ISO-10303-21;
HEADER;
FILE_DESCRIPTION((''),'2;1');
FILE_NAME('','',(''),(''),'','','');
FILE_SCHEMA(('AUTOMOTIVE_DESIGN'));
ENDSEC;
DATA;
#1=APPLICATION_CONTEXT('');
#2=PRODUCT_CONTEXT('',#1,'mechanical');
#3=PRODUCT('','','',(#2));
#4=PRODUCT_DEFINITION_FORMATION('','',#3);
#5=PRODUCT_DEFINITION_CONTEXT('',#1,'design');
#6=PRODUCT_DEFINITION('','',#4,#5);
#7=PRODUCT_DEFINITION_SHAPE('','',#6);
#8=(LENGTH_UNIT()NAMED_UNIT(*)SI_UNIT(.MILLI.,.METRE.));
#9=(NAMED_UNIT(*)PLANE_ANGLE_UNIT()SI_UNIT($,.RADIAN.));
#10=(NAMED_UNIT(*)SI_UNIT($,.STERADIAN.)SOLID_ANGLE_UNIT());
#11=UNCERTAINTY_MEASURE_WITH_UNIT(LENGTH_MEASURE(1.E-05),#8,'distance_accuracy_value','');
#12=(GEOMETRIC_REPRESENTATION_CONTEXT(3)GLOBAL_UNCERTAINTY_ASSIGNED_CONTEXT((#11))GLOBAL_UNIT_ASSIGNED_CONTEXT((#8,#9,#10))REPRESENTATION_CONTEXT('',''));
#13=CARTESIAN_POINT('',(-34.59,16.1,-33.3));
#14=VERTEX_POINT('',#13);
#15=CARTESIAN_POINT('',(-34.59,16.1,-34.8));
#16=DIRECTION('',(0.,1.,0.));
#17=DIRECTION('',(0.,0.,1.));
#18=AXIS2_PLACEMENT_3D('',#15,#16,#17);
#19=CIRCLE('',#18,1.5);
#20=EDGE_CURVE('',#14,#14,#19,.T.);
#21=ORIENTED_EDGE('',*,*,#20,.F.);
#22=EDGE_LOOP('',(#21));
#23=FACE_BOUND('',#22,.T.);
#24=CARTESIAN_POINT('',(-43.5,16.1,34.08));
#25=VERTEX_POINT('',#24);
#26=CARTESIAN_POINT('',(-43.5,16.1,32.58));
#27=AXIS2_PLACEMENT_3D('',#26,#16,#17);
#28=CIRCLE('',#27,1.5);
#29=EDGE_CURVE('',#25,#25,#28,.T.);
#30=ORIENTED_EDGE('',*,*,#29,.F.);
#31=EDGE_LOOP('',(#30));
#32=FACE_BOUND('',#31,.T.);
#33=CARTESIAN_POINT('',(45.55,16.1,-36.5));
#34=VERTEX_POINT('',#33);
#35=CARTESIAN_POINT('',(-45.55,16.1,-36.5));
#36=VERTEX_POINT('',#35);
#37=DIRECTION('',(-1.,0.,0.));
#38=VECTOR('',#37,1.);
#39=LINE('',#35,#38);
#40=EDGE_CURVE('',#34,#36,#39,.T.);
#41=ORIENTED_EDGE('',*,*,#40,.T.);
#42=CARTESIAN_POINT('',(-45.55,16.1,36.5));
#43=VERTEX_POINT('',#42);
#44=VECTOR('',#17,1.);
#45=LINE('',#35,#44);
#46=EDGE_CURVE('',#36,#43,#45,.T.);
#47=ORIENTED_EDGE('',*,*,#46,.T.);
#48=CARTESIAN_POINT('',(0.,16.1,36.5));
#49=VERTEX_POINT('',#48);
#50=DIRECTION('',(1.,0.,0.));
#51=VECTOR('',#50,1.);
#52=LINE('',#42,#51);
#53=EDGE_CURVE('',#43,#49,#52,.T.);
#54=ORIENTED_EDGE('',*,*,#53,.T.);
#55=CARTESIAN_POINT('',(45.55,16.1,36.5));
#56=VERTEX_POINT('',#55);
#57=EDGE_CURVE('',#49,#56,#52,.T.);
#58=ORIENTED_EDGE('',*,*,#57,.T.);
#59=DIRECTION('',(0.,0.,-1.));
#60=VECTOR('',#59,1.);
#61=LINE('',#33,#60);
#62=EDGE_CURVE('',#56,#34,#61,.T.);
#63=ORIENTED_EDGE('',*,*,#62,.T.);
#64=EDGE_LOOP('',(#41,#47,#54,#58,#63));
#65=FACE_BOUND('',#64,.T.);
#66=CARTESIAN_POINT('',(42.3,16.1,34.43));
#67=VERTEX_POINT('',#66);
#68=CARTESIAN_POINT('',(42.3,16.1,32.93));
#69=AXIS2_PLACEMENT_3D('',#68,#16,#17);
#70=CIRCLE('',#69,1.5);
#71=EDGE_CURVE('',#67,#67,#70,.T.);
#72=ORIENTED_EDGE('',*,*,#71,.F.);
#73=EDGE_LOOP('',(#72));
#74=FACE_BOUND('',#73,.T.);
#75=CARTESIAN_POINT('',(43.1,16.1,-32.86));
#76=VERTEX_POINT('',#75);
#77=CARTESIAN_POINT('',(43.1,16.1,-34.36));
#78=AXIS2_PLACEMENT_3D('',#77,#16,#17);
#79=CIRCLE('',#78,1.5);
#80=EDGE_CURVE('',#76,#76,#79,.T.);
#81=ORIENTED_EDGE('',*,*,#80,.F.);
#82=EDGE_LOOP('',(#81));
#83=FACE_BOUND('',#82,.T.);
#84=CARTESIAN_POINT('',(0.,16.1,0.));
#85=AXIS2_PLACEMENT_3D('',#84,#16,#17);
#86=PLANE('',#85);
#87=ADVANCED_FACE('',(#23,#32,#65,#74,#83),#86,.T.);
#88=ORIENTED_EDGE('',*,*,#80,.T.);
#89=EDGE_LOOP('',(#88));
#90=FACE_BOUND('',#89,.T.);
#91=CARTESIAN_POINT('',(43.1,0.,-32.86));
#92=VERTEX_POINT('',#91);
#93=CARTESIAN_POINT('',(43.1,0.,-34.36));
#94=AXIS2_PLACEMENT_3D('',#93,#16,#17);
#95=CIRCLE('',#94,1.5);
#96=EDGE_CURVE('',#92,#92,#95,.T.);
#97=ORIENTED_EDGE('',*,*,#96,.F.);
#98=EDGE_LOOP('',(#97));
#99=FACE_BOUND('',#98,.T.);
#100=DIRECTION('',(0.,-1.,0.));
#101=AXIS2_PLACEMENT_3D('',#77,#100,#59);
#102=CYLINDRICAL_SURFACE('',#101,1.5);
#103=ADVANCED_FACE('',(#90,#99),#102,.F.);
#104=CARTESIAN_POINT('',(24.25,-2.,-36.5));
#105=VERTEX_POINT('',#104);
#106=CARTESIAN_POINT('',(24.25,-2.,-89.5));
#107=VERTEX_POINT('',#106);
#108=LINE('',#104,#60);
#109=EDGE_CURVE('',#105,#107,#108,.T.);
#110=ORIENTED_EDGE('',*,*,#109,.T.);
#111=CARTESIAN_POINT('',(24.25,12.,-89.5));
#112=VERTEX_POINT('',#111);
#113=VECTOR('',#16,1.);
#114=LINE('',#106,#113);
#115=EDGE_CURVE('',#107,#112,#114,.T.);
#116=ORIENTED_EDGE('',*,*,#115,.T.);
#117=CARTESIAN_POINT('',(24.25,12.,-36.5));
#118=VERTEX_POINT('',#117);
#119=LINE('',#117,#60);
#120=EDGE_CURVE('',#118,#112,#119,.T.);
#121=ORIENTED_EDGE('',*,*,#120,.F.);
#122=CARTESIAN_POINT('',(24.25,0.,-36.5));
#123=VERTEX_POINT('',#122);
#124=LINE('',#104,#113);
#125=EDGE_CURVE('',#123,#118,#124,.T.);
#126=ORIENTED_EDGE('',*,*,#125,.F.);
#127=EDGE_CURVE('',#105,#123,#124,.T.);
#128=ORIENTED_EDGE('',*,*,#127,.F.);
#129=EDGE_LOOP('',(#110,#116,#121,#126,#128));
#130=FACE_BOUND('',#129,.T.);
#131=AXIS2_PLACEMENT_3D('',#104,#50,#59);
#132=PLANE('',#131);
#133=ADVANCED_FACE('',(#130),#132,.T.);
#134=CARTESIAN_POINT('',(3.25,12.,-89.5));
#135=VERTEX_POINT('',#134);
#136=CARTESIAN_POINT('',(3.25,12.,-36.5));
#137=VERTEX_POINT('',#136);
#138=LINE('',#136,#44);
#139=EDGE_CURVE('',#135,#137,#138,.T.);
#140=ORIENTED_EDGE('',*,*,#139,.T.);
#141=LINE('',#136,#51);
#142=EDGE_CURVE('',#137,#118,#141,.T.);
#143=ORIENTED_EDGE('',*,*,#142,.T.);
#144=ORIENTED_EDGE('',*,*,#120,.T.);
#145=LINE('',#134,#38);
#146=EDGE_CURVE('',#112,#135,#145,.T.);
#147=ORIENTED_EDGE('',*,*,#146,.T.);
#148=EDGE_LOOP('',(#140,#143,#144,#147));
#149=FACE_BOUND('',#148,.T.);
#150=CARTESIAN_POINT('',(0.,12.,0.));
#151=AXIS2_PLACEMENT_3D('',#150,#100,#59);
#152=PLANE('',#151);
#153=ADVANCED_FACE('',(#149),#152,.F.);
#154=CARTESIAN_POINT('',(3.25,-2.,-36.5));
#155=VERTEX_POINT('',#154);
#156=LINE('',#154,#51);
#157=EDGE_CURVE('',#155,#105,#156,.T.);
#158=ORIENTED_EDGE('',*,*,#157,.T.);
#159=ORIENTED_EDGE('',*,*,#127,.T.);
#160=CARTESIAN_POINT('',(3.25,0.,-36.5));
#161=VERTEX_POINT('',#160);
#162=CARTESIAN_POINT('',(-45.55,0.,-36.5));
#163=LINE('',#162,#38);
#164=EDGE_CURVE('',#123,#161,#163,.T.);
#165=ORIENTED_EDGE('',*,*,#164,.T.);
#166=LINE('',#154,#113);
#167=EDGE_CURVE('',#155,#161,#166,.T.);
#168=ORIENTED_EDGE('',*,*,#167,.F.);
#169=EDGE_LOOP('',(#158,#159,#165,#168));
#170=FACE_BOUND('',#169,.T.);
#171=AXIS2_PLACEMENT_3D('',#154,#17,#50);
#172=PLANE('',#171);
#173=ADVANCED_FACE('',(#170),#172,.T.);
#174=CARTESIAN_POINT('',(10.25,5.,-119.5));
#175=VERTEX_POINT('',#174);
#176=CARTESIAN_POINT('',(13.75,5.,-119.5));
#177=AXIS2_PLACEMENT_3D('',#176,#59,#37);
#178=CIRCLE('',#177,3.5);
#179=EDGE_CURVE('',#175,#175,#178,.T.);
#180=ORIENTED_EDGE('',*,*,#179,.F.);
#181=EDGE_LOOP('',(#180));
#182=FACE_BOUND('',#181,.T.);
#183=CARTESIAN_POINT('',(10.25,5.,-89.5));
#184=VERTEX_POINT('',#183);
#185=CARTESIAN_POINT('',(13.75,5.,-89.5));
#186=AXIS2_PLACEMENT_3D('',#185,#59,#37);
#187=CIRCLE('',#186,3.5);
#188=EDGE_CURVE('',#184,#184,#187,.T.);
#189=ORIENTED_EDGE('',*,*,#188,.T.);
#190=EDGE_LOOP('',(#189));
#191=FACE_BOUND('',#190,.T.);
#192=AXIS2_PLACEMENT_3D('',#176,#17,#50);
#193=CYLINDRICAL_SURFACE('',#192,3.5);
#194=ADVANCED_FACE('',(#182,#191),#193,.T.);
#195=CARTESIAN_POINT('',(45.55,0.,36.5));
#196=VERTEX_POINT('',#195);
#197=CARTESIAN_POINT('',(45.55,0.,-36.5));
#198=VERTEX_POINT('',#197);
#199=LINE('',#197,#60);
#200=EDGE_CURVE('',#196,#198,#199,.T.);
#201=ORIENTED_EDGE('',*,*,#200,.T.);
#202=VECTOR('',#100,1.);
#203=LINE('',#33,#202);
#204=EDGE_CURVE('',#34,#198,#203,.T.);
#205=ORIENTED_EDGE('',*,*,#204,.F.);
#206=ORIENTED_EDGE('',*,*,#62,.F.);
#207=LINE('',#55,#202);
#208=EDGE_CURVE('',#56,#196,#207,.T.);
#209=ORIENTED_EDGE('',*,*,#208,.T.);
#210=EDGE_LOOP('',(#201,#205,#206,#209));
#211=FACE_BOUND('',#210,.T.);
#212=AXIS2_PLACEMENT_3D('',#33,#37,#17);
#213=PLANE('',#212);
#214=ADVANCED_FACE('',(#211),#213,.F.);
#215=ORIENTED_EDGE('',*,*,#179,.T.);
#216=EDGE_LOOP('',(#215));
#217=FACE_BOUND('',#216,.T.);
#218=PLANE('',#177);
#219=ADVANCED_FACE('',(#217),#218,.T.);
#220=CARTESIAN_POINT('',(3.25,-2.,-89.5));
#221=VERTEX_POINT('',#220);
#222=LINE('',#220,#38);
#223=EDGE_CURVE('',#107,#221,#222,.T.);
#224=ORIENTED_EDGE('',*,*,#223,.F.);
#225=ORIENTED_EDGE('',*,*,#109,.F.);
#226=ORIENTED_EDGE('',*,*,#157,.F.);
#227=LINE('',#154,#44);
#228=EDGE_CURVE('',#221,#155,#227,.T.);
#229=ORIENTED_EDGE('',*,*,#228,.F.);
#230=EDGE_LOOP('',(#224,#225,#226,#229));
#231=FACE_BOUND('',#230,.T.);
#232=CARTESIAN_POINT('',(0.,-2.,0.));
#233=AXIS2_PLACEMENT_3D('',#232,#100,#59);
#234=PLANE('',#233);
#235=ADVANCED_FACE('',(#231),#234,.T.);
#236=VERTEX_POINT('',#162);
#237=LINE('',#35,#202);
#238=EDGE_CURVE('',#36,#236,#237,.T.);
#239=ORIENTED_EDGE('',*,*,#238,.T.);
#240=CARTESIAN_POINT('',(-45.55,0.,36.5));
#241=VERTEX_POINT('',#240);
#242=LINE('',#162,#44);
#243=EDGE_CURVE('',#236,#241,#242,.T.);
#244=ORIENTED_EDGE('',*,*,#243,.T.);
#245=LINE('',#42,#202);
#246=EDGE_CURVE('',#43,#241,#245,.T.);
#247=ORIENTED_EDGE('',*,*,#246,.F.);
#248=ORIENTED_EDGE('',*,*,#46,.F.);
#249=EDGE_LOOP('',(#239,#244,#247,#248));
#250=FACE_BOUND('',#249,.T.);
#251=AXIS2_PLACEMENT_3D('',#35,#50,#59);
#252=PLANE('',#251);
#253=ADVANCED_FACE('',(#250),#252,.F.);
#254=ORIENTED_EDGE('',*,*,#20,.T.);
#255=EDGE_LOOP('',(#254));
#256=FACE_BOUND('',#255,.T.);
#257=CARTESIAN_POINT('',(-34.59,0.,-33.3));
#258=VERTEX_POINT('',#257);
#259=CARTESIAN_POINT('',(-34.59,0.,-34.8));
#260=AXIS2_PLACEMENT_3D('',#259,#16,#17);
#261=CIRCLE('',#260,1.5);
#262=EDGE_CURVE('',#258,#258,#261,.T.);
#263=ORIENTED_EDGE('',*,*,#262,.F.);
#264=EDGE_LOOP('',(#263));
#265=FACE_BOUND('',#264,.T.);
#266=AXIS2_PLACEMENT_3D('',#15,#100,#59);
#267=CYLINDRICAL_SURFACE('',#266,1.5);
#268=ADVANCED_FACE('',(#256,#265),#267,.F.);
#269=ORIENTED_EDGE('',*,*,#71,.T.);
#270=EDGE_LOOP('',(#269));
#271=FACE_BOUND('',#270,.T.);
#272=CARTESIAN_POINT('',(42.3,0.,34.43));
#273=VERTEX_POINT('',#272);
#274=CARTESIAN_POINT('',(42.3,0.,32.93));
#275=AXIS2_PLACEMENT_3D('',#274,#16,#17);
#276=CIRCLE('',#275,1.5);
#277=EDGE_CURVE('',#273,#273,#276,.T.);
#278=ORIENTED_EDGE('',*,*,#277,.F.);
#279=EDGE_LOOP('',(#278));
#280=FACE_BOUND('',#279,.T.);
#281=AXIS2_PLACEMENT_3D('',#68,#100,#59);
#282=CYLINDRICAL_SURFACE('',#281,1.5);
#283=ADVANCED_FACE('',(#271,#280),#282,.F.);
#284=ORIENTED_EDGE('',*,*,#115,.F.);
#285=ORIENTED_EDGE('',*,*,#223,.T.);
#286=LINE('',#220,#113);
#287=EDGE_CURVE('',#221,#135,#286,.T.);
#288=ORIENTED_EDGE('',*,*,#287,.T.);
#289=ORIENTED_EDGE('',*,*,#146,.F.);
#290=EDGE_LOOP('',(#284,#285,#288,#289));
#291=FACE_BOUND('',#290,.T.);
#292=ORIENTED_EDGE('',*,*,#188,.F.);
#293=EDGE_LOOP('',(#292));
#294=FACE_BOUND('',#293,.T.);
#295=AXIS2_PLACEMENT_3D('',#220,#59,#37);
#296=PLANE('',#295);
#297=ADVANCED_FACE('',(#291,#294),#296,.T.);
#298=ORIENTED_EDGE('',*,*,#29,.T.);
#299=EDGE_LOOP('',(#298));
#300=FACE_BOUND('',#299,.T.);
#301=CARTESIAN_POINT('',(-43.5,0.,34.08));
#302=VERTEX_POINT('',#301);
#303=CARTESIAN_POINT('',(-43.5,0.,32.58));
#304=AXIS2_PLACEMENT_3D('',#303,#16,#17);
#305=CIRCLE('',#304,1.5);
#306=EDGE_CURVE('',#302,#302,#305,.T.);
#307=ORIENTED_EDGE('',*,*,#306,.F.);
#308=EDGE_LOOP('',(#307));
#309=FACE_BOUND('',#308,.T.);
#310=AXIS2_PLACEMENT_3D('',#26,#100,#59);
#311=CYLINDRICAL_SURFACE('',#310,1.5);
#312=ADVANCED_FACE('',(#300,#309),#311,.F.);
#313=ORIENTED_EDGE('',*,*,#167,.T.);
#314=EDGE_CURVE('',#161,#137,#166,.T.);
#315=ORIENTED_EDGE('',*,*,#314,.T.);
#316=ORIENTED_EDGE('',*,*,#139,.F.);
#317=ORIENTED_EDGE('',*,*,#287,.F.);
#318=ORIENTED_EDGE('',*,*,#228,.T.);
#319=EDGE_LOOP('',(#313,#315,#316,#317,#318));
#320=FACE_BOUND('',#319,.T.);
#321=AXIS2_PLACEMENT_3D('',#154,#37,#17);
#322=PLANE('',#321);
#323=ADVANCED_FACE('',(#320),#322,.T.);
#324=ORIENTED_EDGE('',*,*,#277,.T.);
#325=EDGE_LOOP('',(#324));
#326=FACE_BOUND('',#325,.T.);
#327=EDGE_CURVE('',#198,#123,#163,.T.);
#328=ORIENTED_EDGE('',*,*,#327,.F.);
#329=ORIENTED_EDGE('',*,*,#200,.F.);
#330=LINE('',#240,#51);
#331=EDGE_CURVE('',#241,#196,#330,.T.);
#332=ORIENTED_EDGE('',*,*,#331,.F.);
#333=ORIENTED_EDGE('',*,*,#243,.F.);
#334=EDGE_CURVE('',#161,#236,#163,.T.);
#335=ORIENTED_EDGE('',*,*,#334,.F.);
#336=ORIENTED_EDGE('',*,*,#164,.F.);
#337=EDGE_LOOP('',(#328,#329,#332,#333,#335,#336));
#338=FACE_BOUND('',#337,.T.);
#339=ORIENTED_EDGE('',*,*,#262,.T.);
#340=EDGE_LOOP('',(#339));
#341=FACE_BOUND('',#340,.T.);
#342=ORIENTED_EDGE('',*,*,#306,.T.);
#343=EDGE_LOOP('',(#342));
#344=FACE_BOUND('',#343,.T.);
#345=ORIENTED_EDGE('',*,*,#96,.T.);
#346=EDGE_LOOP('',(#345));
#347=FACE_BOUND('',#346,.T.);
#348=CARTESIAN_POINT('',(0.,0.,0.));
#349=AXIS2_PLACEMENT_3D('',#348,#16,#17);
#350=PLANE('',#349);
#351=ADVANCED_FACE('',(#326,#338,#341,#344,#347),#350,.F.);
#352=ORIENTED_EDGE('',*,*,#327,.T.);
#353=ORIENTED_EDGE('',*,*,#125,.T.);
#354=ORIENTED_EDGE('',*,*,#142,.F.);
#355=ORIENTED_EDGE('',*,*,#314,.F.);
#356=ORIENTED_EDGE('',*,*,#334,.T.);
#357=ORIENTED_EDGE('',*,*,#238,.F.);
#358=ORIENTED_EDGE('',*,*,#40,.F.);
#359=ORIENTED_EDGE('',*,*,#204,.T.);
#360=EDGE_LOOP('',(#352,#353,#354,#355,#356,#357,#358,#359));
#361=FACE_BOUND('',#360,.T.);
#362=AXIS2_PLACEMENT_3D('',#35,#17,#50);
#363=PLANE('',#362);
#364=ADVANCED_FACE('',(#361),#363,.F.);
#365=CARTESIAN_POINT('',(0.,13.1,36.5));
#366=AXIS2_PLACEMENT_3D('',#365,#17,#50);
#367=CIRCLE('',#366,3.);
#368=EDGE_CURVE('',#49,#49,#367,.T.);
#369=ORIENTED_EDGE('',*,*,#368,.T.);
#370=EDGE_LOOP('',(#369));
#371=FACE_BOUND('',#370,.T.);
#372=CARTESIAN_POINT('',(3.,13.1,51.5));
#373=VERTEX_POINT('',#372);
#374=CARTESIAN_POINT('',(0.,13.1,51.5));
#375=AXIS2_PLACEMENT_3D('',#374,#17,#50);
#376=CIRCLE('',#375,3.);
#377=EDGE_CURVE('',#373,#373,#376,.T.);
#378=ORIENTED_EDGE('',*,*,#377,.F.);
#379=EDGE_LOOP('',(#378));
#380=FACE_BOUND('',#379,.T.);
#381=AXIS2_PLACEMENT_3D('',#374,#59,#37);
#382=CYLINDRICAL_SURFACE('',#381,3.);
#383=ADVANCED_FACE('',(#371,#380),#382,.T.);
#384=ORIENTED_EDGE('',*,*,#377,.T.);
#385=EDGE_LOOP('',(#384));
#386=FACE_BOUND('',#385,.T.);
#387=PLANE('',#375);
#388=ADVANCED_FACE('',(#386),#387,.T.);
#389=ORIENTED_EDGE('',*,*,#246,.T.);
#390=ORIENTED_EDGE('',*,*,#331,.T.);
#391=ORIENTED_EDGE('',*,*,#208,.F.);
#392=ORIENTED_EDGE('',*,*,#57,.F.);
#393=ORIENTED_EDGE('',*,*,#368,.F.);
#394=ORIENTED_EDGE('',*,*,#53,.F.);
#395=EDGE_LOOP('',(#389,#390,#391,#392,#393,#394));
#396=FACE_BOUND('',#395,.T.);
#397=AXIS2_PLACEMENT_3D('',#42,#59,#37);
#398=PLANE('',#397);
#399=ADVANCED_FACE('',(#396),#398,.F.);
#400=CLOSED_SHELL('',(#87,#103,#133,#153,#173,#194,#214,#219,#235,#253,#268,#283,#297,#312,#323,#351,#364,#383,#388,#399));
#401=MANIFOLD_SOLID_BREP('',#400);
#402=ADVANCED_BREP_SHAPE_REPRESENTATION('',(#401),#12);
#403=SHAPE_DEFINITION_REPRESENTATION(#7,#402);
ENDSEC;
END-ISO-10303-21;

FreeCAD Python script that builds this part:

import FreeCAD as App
import Part
import Sketcher


def add_polygon(sketch, points):
    """Adds a closed chain of lines whose ends are joined by coincident constraints."""
    first, n = sketch.GeometryCount, len(points)
    for a, b in zip(points, points[1:] + points[:1]):
        sketch.addGeometry(Part.LineSegment(App.Vector(*a, 0), App.Vector(*b, 0)), False)
    for i in range(n):
        sketch.addConstraint(Sketcher.Constraint("Coincident", first + i, 2, first + (i + 1) % n, 1))

doc = App.newDocument("Part")
body = doc.addObject("PartDesign::Body", "Body")

# Sketch on XZ plane
sketch1 = doc.addObject("Sketcher::SketchObject", "Sketch")
body.addObject(sketch1)
sketch1.AttachmentSupport = (doc.XZ_Plane, [""])
sketch1.MapMode = "FlatFace"
add_polygon(sketch1, [(-45.5, -36.5), (-45.5, 36.5), (45.5, 36.5), (45.5, -36.5)])  # lines 0-3
sketch1.addGeometry(Part.Circle(App.Vector(-43.5, 32.6, 0), App.Vector(0, 0, 1), 1.5), False)  # 4
sketch1.addGeometry(Part.Circle(App.Vector(42.3, 32.9, 0), App.Vector(0, 0, 1), 1.5), False)  # 5
sketch1.addGeometry(Part.Circle(App.Vector(-34.6, -34.8, 0), App.Vector(0, 0, 1), 1.5), False)  # 6
sketch1.addGeometry(Part.Circle(App.Vector(43.1, -34.4, 0), App.Vector(0, 0, 1), 1.5), False)  # 7
sketch1.addConstraint([
    Sketcher.Constraint("Vertical", 0),
    Sketcher.Constraint("Horizontal", 1),
    Sketcher.Constraint("Vertical", 2),
    Sketcher.Constraint("Horizontal", 3),
    Sketcher.Constraint("Equal", 4, 5),
    Sketcher.Constraint("Equal", 5, 6),
    Sketcher.Constraint("Equal", 6, 7),
    Sketcher.Constraint("Symmetric", 0, 2, 2, 2, -1, 1),
    Sketcher.Constraint("Diameter", 4, 3.0),
    Sketcher.Constraint("DistanceY", 0, 1, 0, 2, 73.0),
    Sketcher.Constraint("DistanceX", 1, 1, 1, 2, 91.1),
    Sketcher.Constraint("DistanceX", 4, 3, -1, 1, 43.5),
    Sketcher.Constraint("DistanceX", -1, 1, 5, 3, 42.3),
    Sketcher.Constraint("DistanceY", 6, 3, -1, 1, 34.8),
    Sketcher.Constraint("DistanceX", -1, 1, 7, 3, 43.1),
    Sketcher.Constraint("DistanceY", -1, 1, 4, 3, 32.58),
    Sketcher.Constraint("DistanceY", -1, 1, 5, 3, 32.93),
    Sketcher.Constraint("DistanceX", 6, 3, -1, 1, 34.59),
    Sketcher.Constraint("DistanceY", 7, 3, -1, 1, 34.36),
])
pad1 = doc.addObject("PartDesign::Pad", "Pad")
body.addObject(pad1)
pad1.Profile = sketch1
pad1.Length = 16.1
pad1.Reversed = True

# Sketch on XY plane
sketch2 = doc.addObject("Sketcher::SketchObject", "Sketch001")
body.addObject(sketch2)
sketch2.AttachmentSupport = (doc.XY_Plane, [""])
sketch2.MapMode = "FlatFace"
sketch2.AttachmentOffset = App.Placement(App.Vector(0, 0, 36.5), App.Rotation())
sketch2.addGeometry(Part.Circle(App.Vector(0, 13.1, 0), App.Vector(0, 0, 1), 3), False)
sketch2.addConstraint([
    Sketcher.Constraint("PointOnObject", 0, 3, -2),
    Sketcher.Constraint("Diameter", 0, 6.0),
    Sketcher.Constraint("DistanceY", -1, 1, 0, 3, 13.1),
])
pad2 = doc.addObject("PartDesign::Pad", "Pad001")
body.addObject(pad2)
pad2.Profile = sketch2
pad2.Length = 15

# Sketch on XZ plane
sketch3 = doc.addObject("Sketcher::SketchObject", "Sketch002")
body.addObject(sketch3)
sketch3.AttachmentSupport = (doc.XZ_Plane, [""])
sketch3.MapMode = "FlatFace"
add_polygon(sketch3, [(3, -90), (3, -36), (24, -36), (24, -90)])  # lines 0-3
sketch3.addConstraint([
    Sketcher.Constraint("Vertical", 0),
    Sketcher.Constraint("Horizontal", 1),
    Sketcher.Constraint("Vertical", 2),
    Sketcher.Constraint("Horizontal", 3),
    Sketcher.Constraint("DistanceX", 1, 1, 1, 2, 21.0),
    Sketcher.Constraint("DistanceY", 0, 1, 0, 2, 53.0),
    Sketcher.Constraint("DistanceY", 0, 2, -1, 1, 36.5),
    Sketcher.Constraint("DistanceX", -1, 1, 0, 2, 3.25),
])
pad3 = doc.addObject("PartDesign::Pad", "Pad002")
body.addObject(pad3)
pad3.Profile = sketch3
pad3.Type = "TwoLengths"
pad3.Length = 12
pad3.Length2 = 2
pad3.Reversed = True

# Sketch on XY plane
sketch4 = doc.addObject("Sketcher::SketchObject", "Sketch003")
body.addObject(sketch4)
sketch4.AttachmentSupport = (doc.XY_Plane, [""])
sketch4.MapMode = "FlatFace"
sketch4.AttachmentOffset = App.Placement(App.Vector(0, 0, -89.5), App.Rotation())
sketch4.addGeometry(Part.Circle(App.Vector(13.8, 5, 0), App.Vector(0, 0, 1), 3.5), False)
sketch4.addConstraint([
    Sketcher.Constraint("Diameter", 0, 7.0),
    Sketcher.Constraint("DistanceY", -1, 1, 0, 3, 5.0),
    Sketcher.Constraint("DistanceX", -1, 1, 0, 3, 13.75),
])
pad4 = doc.addObject("PartDesign::Pad", "Pad003")
body.addObject(pad4)
pad4.Profile = sketch4
pad4.Length = 30
pad4.Reversed = True

doc.recompute()
